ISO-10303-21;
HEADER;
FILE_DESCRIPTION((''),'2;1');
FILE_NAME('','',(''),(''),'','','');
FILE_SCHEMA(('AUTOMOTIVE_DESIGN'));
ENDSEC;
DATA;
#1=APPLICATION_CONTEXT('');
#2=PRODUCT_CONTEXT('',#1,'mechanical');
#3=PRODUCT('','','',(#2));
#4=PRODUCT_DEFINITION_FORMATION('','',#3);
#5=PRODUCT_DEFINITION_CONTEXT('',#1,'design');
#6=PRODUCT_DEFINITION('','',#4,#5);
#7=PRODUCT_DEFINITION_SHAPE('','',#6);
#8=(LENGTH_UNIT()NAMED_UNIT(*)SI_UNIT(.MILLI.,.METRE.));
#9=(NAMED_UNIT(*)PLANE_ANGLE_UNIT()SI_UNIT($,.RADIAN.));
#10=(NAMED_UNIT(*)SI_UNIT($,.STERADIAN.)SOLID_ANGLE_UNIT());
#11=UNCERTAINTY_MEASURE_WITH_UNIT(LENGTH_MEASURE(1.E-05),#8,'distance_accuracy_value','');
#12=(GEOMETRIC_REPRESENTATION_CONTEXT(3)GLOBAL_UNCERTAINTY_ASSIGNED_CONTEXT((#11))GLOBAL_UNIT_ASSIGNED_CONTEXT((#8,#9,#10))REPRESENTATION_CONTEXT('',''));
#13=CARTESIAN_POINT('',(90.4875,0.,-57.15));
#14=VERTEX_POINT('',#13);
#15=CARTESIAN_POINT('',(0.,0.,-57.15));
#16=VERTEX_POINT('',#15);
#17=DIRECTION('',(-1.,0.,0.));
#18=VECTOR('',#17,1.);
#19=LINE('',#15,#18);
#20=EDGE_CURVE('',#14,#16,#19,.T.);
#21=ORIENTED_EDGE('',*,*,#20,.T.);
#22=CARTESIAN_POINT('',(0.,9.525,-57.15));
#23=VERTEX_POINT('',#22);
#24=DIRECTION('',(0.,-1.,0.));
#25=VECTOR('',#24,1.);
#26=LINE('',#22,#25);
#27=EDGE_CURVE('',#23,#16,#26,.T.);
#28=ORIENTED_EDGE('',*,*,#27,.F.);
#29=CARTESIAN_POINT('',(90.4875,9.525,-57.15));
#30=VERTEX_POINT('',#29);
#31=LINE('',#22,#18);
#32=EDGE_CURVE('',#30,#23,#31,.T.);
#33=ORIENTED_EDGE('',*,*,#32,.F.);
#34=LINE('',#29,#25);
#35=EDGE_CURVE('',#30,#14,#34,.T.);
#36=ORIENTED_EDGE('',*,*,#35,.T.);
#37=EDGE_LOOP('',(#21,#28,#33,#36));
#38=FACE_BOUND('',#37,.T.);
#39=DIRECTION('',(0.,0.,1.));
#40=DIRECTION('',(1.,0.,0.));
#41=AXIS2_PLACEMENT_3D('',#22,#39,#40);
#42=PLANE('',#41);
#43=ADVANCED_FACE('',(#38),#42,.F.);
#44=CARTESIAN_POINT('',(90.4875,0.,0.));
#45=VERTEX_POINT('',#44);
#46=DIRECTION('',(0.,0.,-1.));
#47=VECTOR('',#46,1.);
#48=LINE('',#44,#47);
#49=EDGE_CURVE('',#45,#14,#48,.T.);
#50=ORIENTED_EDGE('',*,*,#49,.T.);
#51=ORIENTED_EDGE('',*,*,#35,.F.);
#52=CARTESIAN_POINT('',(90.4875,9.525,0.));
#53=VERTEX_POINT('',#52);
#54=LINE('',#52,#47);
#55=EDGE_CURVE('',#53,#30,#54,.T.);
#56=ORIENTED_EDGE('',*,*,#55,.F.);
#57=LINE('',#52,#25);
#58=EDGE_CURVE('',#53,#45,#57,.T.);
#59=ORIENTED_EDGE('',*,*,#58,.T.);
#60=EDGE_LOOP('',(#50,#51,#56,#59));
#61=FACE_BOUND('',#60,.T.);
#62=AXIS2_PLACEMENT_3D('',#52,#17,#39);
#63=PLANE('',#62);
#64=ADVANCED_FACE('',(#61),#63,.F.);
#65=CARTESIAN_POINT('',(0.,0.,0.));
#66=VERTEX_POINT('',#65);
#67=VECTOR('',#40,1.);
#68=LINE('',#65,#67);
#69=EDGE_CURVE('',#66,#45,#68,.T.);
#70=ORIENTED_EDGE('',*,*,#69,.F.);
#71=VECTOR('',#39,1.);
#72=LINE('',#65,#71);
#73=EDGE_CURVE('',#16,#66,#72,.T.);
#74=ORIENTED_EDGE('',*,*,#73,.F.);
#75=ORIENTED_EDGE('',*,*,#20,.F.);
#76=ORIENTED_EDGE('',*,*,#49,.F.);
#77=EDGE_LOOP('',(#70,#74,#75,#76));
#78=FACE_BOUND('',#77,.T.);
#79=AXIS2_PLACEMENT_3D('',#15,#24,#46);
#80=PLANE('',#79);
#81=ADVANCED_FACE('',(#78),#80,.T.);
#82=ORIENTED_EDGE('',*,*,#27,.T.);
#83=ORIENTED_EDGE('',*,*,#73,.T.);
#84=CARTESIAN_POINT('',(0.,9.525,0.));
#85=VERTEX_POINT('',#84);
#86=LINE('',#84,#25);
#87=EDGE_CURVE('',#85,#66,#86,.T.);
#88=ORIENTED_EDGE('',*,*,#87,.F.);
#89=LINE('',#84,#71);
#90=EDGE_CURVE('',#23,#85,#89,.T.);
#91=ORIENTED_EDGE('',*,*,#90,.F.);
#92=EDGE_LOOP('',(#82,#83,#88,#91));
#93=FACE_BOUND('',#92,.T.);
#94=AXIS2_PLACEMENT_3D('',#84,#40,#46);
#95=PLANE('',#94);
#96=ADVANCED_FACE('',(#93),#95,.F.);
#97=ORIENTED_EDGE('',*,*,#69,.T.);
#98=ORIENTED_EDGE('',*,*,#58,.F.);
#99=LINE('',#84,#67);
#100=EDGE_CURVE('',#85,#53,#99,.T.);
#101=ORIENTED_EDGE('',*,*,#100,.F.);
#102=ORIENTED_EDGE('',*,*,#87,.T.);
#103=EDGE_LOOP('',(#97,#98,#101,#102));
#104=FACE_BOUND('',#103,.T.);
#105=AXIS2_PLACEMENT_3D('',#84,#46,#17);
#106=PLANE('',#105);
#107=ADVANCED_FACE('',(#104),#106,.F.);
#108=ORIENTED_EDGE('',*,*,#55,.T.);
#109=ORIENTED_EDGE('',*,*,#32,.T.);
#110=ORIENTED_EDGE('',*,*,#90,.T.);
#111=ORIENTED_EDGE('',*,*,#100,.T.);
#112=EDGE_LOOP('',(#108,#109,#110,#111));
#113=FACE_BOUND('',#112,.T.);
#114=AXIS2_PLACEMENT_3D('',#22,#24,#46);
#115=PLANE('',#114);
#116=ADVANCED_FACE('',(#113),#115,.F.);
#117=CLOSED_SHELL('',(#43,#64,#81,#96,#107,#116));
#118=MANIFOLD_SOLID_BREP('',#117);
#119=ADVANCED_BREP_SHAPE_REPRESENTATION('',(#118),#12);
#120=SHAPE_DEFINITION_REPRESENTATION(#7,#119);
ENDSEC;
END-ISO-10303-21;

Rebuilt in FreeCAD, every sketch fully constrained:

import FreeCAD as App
import Part
import Sketcher

V = App.Vector
Q = App.Units.Quantity


def add_polygon(sketch, points):
    """Adds a closed chain of lines whose ends are joined by coincident constraints."""
    first, n = sketch.GeometryCount, len(points)
    for a, b in zip(points, points[1:] + points[:1]):
        sketch.addGeometry(Part.LineSegment(App.Vector(*a, 0), App.Vector(*b, 0)), False)
    for i in range(n):
        sketch.addConstraint(Sketcher.Constraint("Coincident", first + i, 2, first + (i + 1) % n, 1))

doc = App.newDocument("Part")
body = doc.addObject("PartDesign::Body", "Body")

# Sketch on XZ plane
sketch1 = body.newObject("Sketcher::SketchObject", "Sketch")
sketch1.AttachmentSupport = (doc.getObject("XZ_Plane"), [""])
sketch1.MapMode = "FlatFace"
add_polygon(sketch1, [(0, -57), (0, 0), (90, 0), (90, -57)])  # lines 0-3
sketch1.addConstraint([
    Sketcher.Constraint("Vertical", 0),
    Sketcher.Constraint("Horizontal", 1),
    Sketcher.Constraint("Vertical", 2),
    Sketcher.Constraint("Horizontal", 3),
    Sketcher.Constraint("Coincident", 0, 2, -1, 1),
    Sketcher.Constraint("DistanceY", 0, 1, 0, 2, Q("2.25 in")),
    Sketcher.Constraint("DistanceX", 1, 1, 1, 2, Q("3.5625 in")),
])
pad1 = body.newObject("PartDesign::Pad", "Pad")
pad1.Profile = sketch1
pad1.Length = Q("0.375 in")
pad1.Reversed = True

doc.recompute()
